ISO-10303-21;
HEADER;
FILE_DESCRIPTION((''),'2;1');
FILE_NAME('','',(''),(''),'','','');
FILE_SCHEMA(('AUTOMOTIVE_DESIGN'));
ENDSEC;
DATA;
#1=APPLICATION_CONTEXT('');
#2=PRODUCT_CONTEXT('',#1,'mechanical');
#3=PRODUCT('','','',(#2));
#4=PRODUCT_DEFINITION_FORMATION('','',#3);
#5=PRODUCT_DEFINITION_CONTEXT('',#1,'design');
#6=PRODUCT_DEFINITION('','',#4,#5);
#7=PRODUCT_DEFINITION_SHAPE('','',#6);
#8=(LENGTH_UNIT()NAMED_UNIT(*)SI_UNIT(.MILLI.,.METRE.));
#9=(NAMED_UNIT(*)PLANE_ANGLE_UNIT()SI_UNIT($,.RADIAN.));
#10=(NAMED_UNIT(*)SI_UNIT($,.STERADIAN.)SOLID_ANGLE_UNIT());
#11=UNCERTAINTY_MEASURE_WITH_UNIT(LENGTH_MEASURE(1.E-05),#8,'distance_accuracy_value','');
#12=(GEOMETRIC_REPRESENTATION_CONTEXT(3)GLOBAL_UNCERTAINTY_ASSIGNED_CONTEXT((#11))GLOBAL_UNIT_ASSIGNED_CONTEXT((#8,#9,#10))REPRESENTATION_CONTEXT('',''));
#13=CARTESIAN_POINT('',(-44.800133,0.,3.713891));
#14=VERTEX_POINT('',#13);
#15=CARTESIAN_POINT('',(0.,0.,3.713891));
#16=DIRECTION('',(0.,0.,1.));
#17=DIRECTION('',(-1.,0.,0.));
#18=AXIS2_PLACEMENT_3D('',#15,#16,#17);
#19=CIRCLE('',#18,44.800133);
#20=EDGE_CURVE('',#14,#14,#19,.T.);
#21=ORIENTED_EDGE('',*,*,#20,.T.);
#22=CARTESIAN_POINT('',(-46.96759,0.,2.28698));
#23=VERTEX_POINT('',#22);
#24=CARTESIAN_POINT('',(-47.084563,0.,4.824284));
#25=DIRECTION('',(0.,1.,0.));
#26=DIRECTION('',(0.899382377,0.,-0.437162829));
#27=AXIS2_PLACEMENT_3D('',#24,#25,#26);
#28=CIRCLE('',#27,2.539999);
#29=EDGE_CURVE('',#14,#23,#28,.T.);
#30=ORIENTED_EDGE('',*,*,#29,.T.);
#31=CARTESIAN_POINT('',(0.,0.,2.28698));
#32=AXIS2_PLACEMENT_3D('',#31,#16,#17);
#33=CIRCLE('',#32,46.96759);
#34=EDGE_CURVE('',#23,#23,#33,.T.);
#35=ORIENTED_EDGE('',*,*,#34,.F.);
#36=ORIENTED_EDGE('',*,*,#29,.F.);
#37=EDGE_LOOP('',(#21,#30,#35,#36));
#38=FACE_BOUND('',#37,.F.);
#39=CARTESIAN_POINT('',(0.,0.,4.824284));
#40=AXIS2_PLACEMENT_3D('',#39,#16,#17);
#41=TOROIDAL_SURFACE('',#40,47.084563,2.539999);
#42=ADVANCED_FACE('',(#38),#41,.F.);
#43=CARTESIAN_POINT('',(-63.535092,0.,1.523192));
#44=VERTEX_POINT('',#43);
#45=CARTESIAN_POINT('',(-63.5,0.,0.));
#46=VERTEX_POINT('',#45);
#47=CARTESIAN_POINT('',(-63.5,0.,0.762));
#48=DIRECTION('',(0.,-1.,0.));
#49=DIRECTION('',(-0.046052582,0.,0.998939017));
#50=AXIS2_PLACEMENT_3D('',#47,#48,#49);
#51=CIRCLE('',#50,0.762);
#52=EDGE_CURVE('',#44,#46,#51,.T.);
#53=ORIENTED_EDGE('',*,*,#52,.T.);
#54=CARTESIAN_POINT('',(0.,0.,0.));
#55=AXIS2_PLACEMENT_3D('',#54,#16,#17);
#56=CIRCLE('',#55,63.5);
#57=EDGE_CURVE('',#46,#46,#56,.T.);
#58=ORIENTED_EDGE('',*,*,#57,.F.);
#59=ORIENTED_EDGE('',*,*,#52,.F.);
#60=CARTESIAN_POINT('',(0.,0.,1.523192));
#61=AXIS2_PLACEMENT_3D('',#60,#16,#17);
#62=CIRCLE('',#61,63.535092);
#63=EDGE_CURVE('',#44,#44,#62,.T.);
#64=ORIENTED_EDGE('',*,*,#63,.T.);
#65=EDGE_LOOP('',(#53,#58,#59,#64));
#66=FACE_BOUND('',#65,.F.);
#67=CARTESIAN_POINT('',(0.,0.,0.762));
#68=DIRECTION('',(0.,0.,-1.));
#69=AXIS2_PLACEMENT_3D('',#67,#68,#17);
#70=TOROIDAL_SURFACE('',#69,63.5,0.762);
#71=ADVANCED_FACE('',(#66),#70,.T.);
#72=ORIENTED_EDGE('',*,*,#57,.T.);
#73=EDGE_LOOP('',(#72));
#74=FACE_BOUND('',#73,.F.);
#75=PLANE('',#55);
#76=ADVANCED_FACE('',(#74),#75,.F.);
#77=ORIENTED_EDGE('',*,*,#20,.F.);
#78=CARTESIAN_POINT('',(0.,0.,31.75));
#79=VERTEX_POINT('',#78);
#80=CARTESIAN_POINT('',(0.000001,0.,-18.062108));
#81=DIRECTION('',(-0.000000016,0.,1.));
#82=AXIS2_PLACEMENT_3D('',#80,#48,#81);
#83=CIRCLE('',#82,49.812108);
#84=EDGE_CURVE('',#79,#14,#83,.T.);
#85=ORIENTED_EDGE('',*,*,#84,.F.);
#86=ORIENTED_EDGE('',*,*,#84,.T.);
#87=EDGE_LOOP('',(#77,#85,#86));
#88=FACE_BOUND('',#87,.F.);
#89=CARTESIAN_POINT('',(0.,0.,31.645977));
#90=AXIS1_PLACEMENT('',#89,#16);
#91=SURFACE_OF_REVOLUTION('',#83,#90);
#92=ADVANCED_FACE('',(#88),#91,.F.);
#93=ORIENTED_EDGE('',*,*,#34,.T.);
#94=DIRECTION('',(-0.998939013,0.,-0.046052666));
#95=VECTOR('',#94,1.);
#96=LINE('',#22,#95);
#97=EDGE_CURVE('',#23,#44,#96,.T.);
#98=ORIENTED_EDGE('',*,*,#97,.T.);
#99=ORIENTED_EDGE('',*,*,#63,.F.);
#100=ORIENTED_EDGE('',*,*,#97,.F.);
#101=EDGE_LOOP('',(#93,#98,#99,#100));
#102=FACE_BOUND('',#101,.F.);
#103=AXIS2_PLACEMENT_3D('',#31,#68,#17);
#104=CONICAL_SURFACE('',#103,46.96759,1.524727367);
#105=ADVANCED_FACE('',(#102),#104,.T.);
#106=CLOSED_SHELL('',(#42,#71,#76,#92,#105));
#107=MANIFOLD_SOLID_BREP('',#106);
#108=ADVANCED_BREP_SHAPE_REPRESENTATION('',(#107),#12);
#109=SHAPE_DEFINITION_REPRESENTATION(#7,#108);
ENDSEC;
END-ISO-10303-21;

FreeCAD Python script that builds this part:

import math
import FreeCAD as App
import Part
import Sketcher

V = App.Vector
Q = App.Units.Quantity

doc = App.newDocument("Part")
body = doc.addObject("PartDesign::Body", "Body")

# Sketch on XZ plane
sketch1 = body.newObject("Sketcher::SketchObject", "Sketch")
sketch1.AttachmentSupport = (doc.getObject("XZ_Plane"), [""])
sketch1.MapMode = "FlatFace"
sketch1.addGeometry(Part.LineSegment(V(-47, 2.3, 0), V(-63.5, 1.5, 0)), False)
sketch1.addGeometry(Part.ArcOfCircle(Part.Circle(V(-63.5, 0.8, 0), V(0, 0, 1), 0.8), math.radians(93), math.radians(270)), False)
sketch1.addGeometry(Part.LineSegment(V(-63.5, 0, 0), V(0, 0, 0)), False)
sketch1.addGeometry(Part.LineSegment(V(0, 0, 0), V(0, 31.8, 0)), False)
sketch1.addGeometry(Part.ArcOfCircle(Part.Circle(V(0, -18.1, 0), V(0, 0, 1), 49.8), math.radians(90), math.radians(154)), False)
sketch1.addGeometry(Part.ArcOfCircle(Part.Circle(V(-47.1, 4.8, 0), V(0, 0, 1), 2.5), math.radians(-87), math.radians(-26)), False)
sketch1.addConstraint(Sketcher.Constraint("Tangent", 0, 2, 1, 1))
sketch1.addConstraint(Sketcher.Constraint("Tangent", 1, 2, 2, 1))
sketch1.addConstraint(Sketcher.Constraint("Coincident", 2, 2, 3, 1))
sketch1.addConstraint(Sketcher.Constraint("Coincident", 3, 2, 4, 1))
sketch1.addConstraint(Sketcher.Constraint("Tangent", 4, 2, 5, 2))
sketch1.addConstraint(Sketcher.Constraint("Tangent", 5, 1, 0, 1))
sketch1.addConstraint(Sketcher.Constraint("Horizontal", 2))
sketch1.addConstraint(Sketcher.Constraint("Vertical", 3))
sketch1.addConstraint(Sketcher.Constraint("Coincident", 2, 2, -1, 1))
sketch1.addConstraint(Sketcher.Constraint("PointOnObject", 4, 3, -2))
sketch1.addConstraint(Sketcher.Constraint("Radius", 5, Q("0.1 in")))
sketch1.addConstraint(Sketcher.Constraint("Radius", 1, Q("0.03 in")))
sketch1.addConstraint(Sketcher.Constraint("DistanceX", 2, 1, 2, 2, Q("2.5 in")))
sketch1.addConstraint(Sketcher.Constraint("DistanceY", 3, 1, 3, 2, Q("1.25 in")))
sketch1.addConstraint(Sketcher.Constraint("Radius", 4, Q("49.812108 mm")))
sketch1.addConstraint(Sketcher.Constraint("Distance", 0, Q("16.585099 mm")))
revolution = body.newObject("PartDesign::Revolution", "Revolution")
revolution.Profile = sketch1
revolution.ReferenceAxis = (sketch1, ["V_Axis"])
revolution.Angle = 360

doc.recompute()
